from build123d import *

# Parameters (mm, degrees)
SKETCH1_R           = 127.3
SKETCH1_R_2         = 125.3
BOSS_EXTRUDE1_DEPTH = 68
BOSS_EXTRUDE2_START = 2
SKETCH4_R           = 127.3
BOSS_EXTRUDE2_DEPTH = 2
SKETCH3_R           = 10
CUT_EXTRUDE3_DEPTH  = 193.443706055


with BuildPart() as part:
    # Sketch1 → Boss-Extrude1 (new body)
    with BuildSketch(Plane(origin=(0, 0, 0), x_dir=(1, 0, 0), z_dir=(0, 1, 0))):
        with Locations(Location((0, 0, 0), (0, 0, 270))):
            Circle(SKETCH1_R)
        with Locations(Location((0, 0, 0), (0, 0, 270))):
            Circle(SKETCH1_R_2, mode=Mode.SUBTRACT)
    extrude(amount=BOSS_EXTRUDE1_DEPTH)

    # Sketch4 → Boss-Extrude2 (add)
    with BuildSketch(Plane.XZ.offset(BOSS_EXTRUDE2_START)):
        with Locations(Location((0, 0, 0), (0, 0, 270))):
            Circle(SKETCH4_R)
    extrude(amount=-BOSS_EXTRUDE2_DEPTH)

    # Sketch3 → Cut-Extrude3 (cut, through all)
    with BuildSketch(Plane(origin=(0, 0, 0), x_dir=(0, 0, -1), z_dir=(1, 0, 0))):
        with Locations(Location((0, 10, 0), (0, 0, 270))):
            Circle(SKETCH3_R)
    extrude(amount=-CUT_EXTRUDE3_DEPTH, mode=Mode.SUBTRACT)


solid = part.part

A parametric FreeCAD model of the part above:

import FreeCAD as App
import Part
import Sketcher
Q = App.Units.Quantity

doc = App.newDocument("Part")
params = doc.addObject("Spreadsheet::Sheet", "Params")
for row, (alias, value) in enumerate([
    ("sketch1_diameter", "254.6 mm"),
    ("sketch1_diameter2", "250.6 mm"),
    ("pad1_length", "68 mm"),
    ("sketch2_diameter", "254.6 mm"),
    ("pad2_length", "2 mm"),
    ("sketch3_diameter", "20 mm"),
], start=1):
    params.set(f"A{row}", alias)
    params.set(f"B{row}", "=" + value)
    params.setAlias(f"B{row}", alias)

body = doc.addObject("PartDesign::Body", "Body")

# Sketch on XZ plane
sketch1 = doc.addObject("Sketcher::SketchObject", "Sketch")
body.addObject(sketch1)
sketch1.AttachmentSupport = (doc.XZ_Plane, [""])
sketch1.MapMode = "FlatFace"
sketch1.addGeometry([
    Part.Circle(App.Vector(0, 0, 0), App.Vector(0, 0, 1), 127.3),
    Part.Circle(App.Vector(0, 0, 0), App.Vector(0, 0, 1), 125.3),
], False)
sketch1.addConstraint([
    Sketcher.Constraint("Coincident", 0, 3, -1, 1),
    Sketcher.Constraint("Coincident", 1, 3, -1, 1),
    Sketcher.Constraint("Diameter", 0, Q("254.6 mm")),
    Sketcher.Constraint("Diameter", 1, Q("250.6 mm")),
])
sketch1.setExpression("Constraints[2]", "Params.sketch1_diameter")
sketch1.setExpression("Constraints[3]", "Params.sketch1_diameter2")
pad1 = doc.addObject("PartDesign::Pad", "Pad")
body.addObject(pad1)
pad1.Profile = sketch1
pad1.setExpression("Length", "Params.pad1_length")
pad1.Reversed = True

# Sketch on XZ plane
sketch2 = doc.addObject("Sketcher::SketchObject", "Sketch001")
body.addObject(sketch2)
sketch2.AttachmentSupport = (doc.XZ_Plane, [""])
sketch2.MapMode = "FlatFace"
sketch2.AttachmentOffset = App.Placement(App.Vector(0, 0, 2), App.Rotation())
sketch2.addGeometry(Part.Circle(App.Vector(0, 0, 0), App.Vector(0, 0, 1), 127.3), False)
sketch2.addConstraint([
    Sketcher.Constraint("Coincident", 0, 3, -1, 1),
    Sketcher.Constraint("Diameter", 0, Q("254.6 mm")),
])
sketch2.setExpression("Constraints[1]", "Params.sketch2_diameter")
pad2 = doc.addObject("PartDesign::Pad", "Pad001")
body.addObject(pad2)
pad2.Profile = sketch2
pad2.setExpression("Length", "Params.pad2_length")
pad2.Reversed = True

# Sketch on YZ plane
sketch3 = doc.addObject("Sketcher::SketchObject", "Sketch002")
body.addObject(sketch3)
sketch3.AttachmentSupport = (doc.YZ_Plane, [""])
sketch3.MapMode = "FlatFace"
sketch3.addGeometry(Part.Circle(App.Vector(10, 0, 0), App.Vector(0, 0, 1), 10), False)
sketch3.addConstraint([
    Sketcher.Constraint("PointOnObject", 0, 3, -1),
    Sketcher.Constraint("Diameter", 0, Q("20 mm")),
    Sketcher.Constraint("DistanceX", -1, 1, 0, 3, Q("10 mm")),
])
sketch3.setExpression("Constraints[1]", "Params.sketch3_diameter")
pocket1 = doc.addObject("PartDesign::Pocket", "Pocket")
body.addObject(pocket1)
pocket1.Profile = sketch3
pocket1.Type = "ThroughAll"

doc.recompute()
